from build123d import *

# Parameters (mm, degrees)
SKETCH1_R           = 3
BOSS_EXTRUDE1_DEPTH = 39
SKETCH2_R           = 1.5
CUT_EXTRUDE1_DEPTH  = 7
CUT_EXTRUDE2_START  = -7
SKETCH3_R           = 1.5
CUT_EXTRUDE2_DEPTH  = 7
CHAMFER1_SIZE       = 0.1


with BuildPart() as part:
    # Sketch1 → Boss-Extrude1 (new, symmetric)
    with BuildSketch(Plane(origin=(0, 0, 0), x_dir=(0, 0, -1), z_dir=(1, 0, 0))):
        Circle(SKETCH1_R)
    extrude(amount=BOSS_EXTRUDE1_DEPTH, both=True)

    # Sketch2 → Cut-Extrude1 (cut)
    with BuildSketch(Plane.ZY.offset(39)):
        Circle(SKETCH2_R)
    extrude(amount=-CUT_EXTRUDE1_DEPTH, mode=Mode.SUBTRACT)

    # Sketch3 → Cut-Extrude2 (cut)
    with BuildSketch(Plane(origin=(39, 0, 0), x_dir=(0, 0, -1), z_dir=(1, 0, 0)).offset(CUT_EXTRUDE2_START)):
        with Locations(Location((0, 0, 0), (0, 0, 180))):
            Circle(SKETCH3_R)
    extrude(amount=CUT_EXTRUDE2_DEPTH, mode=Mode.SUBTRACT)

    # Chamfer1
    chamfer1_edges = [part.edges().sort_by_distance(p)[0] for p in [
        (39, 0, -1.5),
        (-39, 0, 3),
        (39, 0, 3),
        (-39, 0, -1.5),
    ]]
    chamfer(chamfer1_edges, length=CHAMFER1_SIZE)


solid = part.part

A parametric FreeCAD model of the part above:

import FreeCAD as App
import Part
import Sketcher
from FreeCAD import Vector


def edges_at(feature, points):
    """Names of the edges that pass closest to the given points."""
    edges = feature.Shape.Edges
    near = lambda p: min(range(len(edges)), key=lambda i: edges[i].distToShape(Part.Vertex(*p))[0])
    return sorted({f"Edge{near(p) + 1}" for p in points})

doc = App.newDocument("Part")
body = doc.addObject("PartDesign::Body", "Body")

# Sketch on YZ plane
sketch1 = doc.addObject("Sketcher::SketchObject", "Sketch")
body.addObject(sketch1)
sketch1.AttachmentSupport = (doc.YZ_Plane, [""])
sketch1.MapMode = "FlatFace"
sketch1.addGeometry(Part.Circle(Vector(0, 0, 0), Vector(0, 0, 1), 3), False)
sketch1.addConstraint(Sketcher.Constraint("Coincident", 0, 3, -1, 1))
sketch1.addConstraint(Sketcher.Constraint("Diameter", 0, 6.0))
pad1 = doc.addObject("PartDesign::Pad", "Pad")
body.addObject(pad1)
pad1.Profile = sketch1
pad1.Length = 78
pad1.Midplane = True

# Sketch on YZ plane
sketch2 = doc.addObject("Sketcher::SketchObject", "Sketch001")
body.addObject(sketch2)
sketch2.AttachmentSupport = (doc.YZ_Plane, [""])
sketch2.MapMode = "FlatFace"
sketch2.AttachmentOffset = App.Placement(Vector(0, 0, -39), App.Rotation())
sketch2.addGeometry(Part.Circle(Vector(0, 0, 0), Vector(0, 0, 1), 1.5), False)
sketch2.addConstraint(Sketcher.Constraint("Coincident", 0, 3, -1, 1))
sketch2.addConstraint(Sketcher.Constraint("Diameter", 0, 3.0))
pocket1 = doc.addObject("PartDesign::Pocket", "Pocket")
body.addObject(pocket1)
pocket1.Profile = sketch2
pocket1.Length = 7
pocket1.Reversed = True

# Sketch on YZ plane
sketch3 = doc.addObject("Sketcher::SketchObject", "Sketch002")
body.addObject(sketch3)
sketch3.AttachmentSupport = (doc.YZ_Plane, [""])
sketch3.MapMode = "FlatFace"
sketch3.AttachmentOffset = App.Placement(Vector(0, 0, 32), App.Rotation())
sketch3.addGeometry(Part.Circle(Vector(0, 0, 0), Vector(0, 0, 1), 1.5), False)
sketch3.addConstraint(Sketcher.Constraint("Coincident", 0, 3, -1, 1))
sketch3.addConstraint(Sketcher.Constraint("Diameter", 0, 3.0))
pocket2 = doc.addObject("PartDesign::Pocket", "Pocket001")
body.addObject(pocket2)
pocket2.Profile = sketch3
pocket2.Length = 7
pocket2.Reversed = True
doc.recompute()

chamfer = doc.addObject("PartDesign::Chamfer", "Chamfer")
body.addObject(chamfer)
chamfer.Base = (pocket2, edges_at(pocket2, [
    (39, 0, -1.5),
    (-39, 0, 3),
    (39, 0, 3),
    (-39, 0, -1.5),
]))
chamfer.Size = 0.1

doc.recompute()
